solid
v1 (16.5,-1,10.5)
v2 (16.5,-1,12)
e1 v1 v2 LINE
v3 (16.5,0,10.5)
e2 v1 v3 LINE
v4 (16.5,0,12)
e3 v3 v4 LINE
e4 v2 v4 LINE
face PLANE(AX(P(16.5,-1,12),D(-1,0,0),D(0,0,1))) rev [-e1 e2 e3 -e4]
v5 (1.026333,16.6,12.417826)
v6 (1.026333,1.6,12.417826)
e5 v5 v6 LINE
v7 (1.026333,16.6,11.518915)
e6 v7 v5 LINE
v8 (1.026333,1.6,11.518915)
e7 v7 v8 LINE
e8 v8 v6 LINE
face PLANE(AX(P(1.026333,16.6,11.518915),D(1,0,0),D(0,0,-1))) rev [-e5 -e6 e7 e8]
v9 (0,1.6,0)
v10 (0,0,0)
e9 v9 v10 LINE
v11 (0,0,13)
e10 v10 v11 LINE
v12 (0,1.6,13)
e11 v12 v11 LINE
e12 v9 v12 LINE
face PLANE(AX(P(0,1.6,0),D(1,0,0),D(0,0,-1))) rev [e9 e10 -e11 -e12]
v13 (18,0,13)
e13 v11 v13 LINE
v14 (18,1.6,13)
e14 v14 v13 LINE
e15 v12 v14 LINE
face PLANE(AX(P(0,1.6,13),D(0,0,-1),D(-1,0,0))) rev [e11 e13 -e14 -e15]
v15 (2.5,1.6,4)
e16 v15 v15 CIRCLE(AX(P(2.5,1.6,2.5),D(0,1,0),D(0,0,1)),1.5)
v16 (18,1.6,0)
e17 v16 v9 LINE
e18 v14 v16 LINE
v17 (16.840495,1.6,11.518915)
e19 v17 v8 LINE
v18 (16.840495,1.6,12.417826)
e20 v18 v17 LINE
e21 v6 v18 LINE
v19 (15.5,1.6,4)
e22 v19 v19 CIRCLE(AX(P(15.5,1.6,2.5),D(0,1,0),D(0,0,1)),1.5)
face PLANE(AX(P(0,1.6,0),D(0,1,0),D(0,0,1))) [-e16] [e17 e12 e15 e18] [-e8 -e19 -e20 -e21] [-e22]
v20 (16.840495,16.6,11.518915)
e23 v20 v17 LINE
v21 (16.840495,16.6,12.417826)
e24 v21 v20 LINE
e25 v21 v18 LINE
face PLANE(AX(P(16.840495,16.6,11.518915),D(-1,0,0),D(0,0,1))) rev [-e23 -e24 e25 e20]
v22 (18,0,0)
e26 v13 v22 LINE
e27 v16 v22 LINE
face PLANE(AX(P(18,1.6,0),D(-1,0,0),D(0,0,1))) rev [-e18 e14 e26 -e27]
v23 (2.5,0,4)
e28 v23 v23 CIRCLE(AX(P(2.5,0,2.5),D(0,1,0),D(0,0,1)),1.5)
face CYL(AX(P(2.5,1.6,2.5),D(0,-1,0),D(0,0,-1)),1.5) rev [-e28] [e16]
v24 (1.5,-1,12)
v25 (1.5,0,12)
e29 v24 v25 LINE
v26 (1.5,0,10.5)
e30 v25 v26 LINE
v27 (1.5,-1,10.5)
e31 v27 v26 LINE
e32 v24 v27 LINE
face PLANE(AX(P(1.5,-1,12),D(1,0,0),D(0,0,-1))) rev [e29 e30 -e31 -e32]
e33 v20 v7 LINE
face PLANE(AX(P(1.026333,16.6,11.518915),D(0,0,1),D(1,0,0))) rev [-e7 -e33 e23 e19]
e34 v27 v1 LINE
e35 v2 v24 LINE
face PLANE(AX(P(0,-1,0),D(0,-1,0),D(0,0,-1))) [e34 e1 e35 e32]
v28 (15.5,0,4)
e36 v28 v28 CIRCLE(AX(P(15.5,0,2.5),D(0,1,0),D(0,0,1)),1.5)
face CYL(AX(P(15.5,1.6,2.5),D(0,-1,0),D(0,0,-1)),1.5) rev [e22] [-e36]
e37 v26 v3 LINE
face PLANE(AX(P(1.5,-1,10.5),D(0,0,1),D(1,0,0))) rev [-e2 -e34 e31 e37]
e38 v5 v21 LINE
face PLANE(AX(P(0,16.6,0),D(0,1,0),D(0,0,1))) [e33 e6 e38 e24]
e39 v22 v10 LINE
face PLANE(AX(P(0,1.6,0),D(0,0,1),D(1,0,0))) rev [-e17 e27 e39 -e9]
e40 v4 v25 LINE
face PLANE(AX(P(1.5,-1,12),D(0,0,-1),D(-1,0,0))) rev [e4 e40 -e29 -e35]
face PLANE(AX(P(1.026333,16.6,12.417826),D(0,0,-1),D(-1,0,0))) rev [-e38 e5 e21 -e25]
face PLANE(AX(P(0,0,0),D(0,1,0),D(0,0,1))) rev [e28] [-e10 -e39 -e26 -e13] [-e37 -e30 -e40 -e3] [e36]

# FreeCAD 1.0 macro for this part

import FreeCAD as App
import Part
import Sketcher


def add_polygon(sketch, points):
    """Adds a closed chain of lines whose ends are joined by coincident constraints."""
    first, n = sketch.GeometryCount, len(points)
    for a, b in zip(points, points[1:] + points[:1]):
        sketch.addGeometry(Part.LineSegment(App.Vector(*a, 0), App.Vector(*b, 0)), False)
    for i in range(n):
        sketch.addConstraint(Sketcher.Constraint("Coincident", first + i, 2, first + (i + 1) % n, 1))

doc = App.newDocument("Part")
body = doc.addObject("PartDesign::Body", "Body")

# Sketch on XZ plane
sketch1 = body.newObject("Sketcher::SketchObject", "Sketch")
sketch1.AttachmentSupport = (doc.getObject("XZ_Plane"), [""])
sketch1.MapMode = "FlatFace"
add_polygon(sketch1, [(0, 0), (0, 13), (18, 13), (18, 0)])  # lines 0-3
sketch1.addGeometry(Part.Circle(App.Vector(2.5, 2.5, 0), App.Vector(0, 0, 1), 1.5), False)  # 4
sketch1.addGeometry(Part.Circle(App.Vector(15.5, 2.5, 0), App.Vector(0, 0, 1), 1.5), False)  # 5
sketch1.addConstraint([
    Sketcher.Constraint("Vertical", 0),
    Sketcher.Constraint("Horizontal", 1),
    Sketcher.Constraint("Vertical", 2),
    Sketcher.Constraint("Horizontal", 3),
    Sketcher.Constraint("Coincident", 3, 2, -1, 1),
    Sketcher.Constraint("Equal", 4, 5),
    Sketcher.Constraint("Horizontal", 4, 3, 5, 3),
    Sketcher.Constraint("Diameter", 4, 3.0),
    Sketcher.Constraint("DistanceX", 1, 1, 1, 2, 18.0),
    Sketcher.Constraint("DistanceY", 0, 1, 0, 2, 13.0),
    Sketcher.Constraint("DistanceX", 4, 3, 5, 3, 13.0),
    Sketcher.Constraint("DistanceX", -1, 1, 4, 3, 2.5),
    Sketcher.Constraint("DistanceY", -1, 1, 4, 3, 2.5),
])
pad1 = body.newObject("PartDesign::Pad", "Pad")
pad1.Profile = sketch1
pad1.Length = 1.6
pad1.Reversed = True

# Sketch on XZ plane
sketch2 = body.newObject("Sketcher::SketchObject", "Sketch001")
sketch2.AttachmentSupport = (doc.getObject("XZ_Plane"), [""])
sketch2.MapMode = "FlatFace"
add_polygon(sketch2, [(1.5, 12), (1.5, 10.5), (16.5, 10.5), (16.5, 12)])  # lines 0-3
sketch2.addConstraint([
    Sketcher.Constraint("Vertical", 0),
    Sketcher.Constraint("Horizontal", 1),
    Sketcher.Constraint("Vertical", 2),
    Sketcher.Constraint("Horizontal", 3),
    Sketcher.Constraint("DistanceX", 1, 1, 1, 2, 15.0),
    Sketcher.Constraint("DistanceY", 0, 2, 0, 1, 1.5),
    Sketcher.Constraint("DistanceY", -1, 1, 2, 2, 12.0),
    Sketcher.Constraint("DistanceX", -1, 1, 0, 2, 1.5),
])
pad2 = body.newObject("PartDesign::Pad", "Pad001")
pad2.Profile = sketch2
pad2.Length = 1

# Sketch on XZ plane
sketch3 = body.newObject("Sketcher::SketchObject", "Sketch002")
sketch3.AttachmentSupport = (doc.getObject("XZ_Plane"), [""])
sketch3.MapMode = "FlatFace"
sketch3.AttachmentOffset = App.Placement(App.Vector(0, 0, -1.6), App.Rotation())
add_polygon(sketch3, [(1.026333, 11.518915), (1.026333, 12.417826), (16.840495, 12.417826), (16.840495, 11.518915)])  # lines 0-3
sketch3.addConstraint([
    Sketcher.Constraint("Vertical", 0),
    Sketcher.Constraint("Horizontal", 1),
    Sketcher.Constraint("Vertical", 2),
    Sketcher.Constraint("Horizontal", 3),
    Sketcher.Constraint("DistanceX", 1, 1, 1, 2, 15.814162),
    Sketcher.Constraint("DistanceY", 0, 1, 0, 2, 0.89891),
    Sketcher.Constraint("DistanceX", -1, 1, 0, 2, 1.026333),
    Sketcher.Constraint("DistanceY", -1, 1, 0, 2, 12.417826),
])
pad3 = body.newObject("PartDesign::Pad", "Pad002")
pad3.Profile = sketch3
pad3.Length = 15
pad3.Reversed = True

doc.recompute()
